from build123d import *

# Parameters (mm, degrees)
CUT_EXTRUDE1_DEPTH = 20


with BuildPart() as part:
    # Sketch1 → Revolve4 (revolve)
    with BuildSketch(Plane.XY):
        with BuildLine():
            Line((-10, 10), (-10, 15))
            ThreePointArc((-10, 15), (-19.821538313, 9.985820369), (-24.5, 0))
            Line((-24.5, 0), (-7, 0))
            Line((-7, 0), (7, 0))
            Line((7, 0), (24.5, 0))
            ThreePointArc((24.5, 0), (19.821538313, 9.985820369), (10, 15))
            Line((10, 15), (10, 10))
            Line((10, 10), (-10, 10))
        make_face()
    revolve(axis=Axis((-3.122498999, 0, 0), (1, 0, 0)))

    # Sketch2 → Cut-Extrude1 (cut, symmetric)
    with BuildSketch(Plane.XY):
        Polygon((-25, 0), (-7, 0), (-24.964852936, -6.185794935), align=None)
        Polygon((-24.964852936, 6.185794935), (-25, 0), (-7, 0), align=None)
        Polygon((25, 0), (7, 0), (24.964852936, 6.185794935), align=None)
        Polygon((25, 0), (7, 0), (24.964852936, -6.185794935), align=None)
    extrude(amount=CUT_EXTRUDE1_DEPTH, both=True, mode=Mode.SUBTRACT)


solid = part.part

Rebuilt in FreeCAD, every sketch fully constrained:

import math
import FreeCAD as App
import Part
import Sketcher

V = App.Vector
Q = App.Units.Quantity

doc = App.newDocument("Part")
body = doc.addObject("PartDesign::Body", "Body")

sketch1 = body.newObject("Sketcher::SketchObject", "Sketch")
sketch1.AttachmentSupport = (doc.getObject("XY_Plane"), [""])
sketch1.MapMode = "FlatFace"
sketch1.addGeometry(Part.LineSegment(V(-10, 10, 0), V(-10, 15, 0)), False)
sketch1.addGeometry(Part.ArcOfCircle(Part.Circle(V(-8, -2, 0), V(0, 0, 1), 17), math.radians(98), math.radians(174)), False)
sketch1.addGeometry(Part.LineSegment(V(-24, 0, 0), V(24, 0, 0)), False)
sketch1.addGeometry(Part.ArcOfCircle(Part.Circle(V(8, -2, 0), V(0, 0, 1), 17), math.radians(6), math.radians(82)), False)
sketch1.addGeometry(Part.LineSegment(V(10, 15, 0), V(10, 10, 0)), False)
sketch1.addGeometry(Part.LineSegment(V(10, 10, 0), V(-10, 10, 0)), False)
sketch1.addConstraint(Sketcher.Constraint("Coincident", 0, 2, 1, 1))
sketch1.addConstraint(Sketcher.Constraint("Coincident", 1, 2, 2, 1))
sketch1.addConstraint(Sketcher.Constraint("Coincident", 2, 2, 3, 1))
sketch1.addConstraint(Sketcher.Constraint("Coincident", 3, 2, 4, 1))
sketch1.addConstraint(Sketcher.Constraint("Coincident", 4, 2, 5, 1))
sketch1.addConstraint(Sketcher.Constraint("Coincident", 5, 2, 0, 1))
sketch1.addConstraint(Sketcher.Constraint("Vertical", 0))
sketch1.addConstraint(Sketcher.Constraint("Horizontal", 2))
sketch1.addConstraint(Sketcher.Constraint("Vertical", 4))
sketch1.addConstraint(Sketcher.Constraint("Horizontal", 5))
sketch1.addConstraint(Sketcher.Constraint("Equal", 1, 3))
sketch1.addConstraint(Sketcher.Constraint("Symmetric", 1, 2, 2, 2, -1, 1))
sketch1.addConstraint(Sketcher.Constraint("Symmetric", 0, 2, 3, 2, -2))
sketch1.addConstraint(Sketcher.Constraint("Radius", 1, Q("17 mm")))
sketch1.addConstraint(Sketcher.Constraint("DistanceX", 2, 1, 2, 2, Q("49 mm")))
sketch1.addConstraint(Sketcher.Constraint("DistanceX", 5, 2, 5, 1, Q("20 mm")))
sketch1.addConstraint(Sketcher.Constraint("DistanceY", 0, 1, 0, 2, Q("5 mm")))
sketch1.addConstraint(Sketcher.Constraint("DistanceY", -1, 1, 0, 2, Q("15 mm")))
revolution = body.newObject("PartDesign::Revolution", "Revolution")
revolution.Profile = sketch1
revolution.ReferenceAxis = (sketch1, ["H_Axis"])
revolution.Angle = 360

sketch2 = body.newObject("Sketcher::SketchObject", "Sketch001")
sketch2.AttachmentSupport = (doc.getObject("XY_Plane"), [""])
sketch2.MapMode = "FlatFace"
sketch2.addGeometry(Part.LineSegment(V(-25, -6, 0), V(-7, 0, 0)), False)
sketch2.addGeometry(Part.LineSegment(V(-7, 0, 0), V(-25, 6, 0)), False)
sketch2.addGeometry(Part.LineSegment(V(-25, 6, 0), V(-25, 0, 0)), False)
sketch2.addGeometry(Part.LineSegment(V(-25, 0, 0), V(-25, -6, 0)), False)
sketch2.addGeometry(Part.LineSegment(V(25, 6, 0), V(7, 0, 0)), False)
sketch2.addGeometry(Part.LineSegment(V(7, 0, 0), V(25, -6, 0)), False)
sketch2.addGeometry(Part.LineSegment(V(25, -6, 0), V(25, 0, 0)), False)
sketch2.addGeometry(Part.LineSegment(V(25, 0, 0), V(25, 6, 0)), False)
sketch2.addConstraint(Sketcher.Constraint("Coincident", 0, 2, 1, 1))
sketch2.addConstraint(Sketcher.Constraint("Coincident", 1, 2, 2, 1))
sketch2.addConstraint(Sketcher.Constraint("Coincident", 2, 2, 3, 1))
sketch2.addConstraint(Sketcher.Constraint("Coincident", 3, 2, 0, 1))
sketch2.addConstraint(Sketcher.Constraint("Coincident", 4, 2, 5, 1))
sketch2.addConstraint(Sketcher.Constraint("Coincident", 5, 2, 6, 1))
sketch2.addConstraint(Sketcher.Constraint("Coincident", 6, 2, 7, 1))
sketch2.addConstraint(Sketcher.Constraint("Coincident", 7, 2, 4, 1))
sketch2.addConstraint(Sketcher.Constraint("Symmetric", 0, 2, 4, 2, -1, 1))
sketch2.addConstraint(Sketcher.Constraint("Symmetric", 1, 2, 5, 2, -1, 1))
sketch2.addConstraint(Sketcher.Constraint("Symmetric", 2, 2, 6, 2, -1, 1))
sketch2.addConstraint(Sketcher.Constraint("Symmetric", 3, 2, 7, 2, -1, 1))
sketch2.addConstraint(Sketcher.Constraint("Symmetric", 3, 2, 5, 2, -2))
sketch2.addConstraint(Sketcher.Constraint("PointOnObject", 0, 2, -1))
sketch2.addConstraint(Sketcher.Constraint("PointOnObject", 2, 2, -1))
sketch2.addConstraint(Sketcher.Constraint("Angle", 0, Q("19 deg")))
sketch2.addConstraint(Sketcher.Constraint("Distance", 0, Q("19 mm")))
sketch2.addConstraint(Sketcher.Constraint("DistanceX", 0, 2, -1, 1, Q("7 mm")))
sketch2.addConstraint(Sketcher.Constraint("DistanceX", 2, 2, -1, 1, Q("25 mm")))
pocket1 = body.newObject("PartDesign::Pocket", "Pocket")
pocket1.Profile = sketch2
pocket1.Length = 40
pocket1.Midplane = True

doc.recompute()
